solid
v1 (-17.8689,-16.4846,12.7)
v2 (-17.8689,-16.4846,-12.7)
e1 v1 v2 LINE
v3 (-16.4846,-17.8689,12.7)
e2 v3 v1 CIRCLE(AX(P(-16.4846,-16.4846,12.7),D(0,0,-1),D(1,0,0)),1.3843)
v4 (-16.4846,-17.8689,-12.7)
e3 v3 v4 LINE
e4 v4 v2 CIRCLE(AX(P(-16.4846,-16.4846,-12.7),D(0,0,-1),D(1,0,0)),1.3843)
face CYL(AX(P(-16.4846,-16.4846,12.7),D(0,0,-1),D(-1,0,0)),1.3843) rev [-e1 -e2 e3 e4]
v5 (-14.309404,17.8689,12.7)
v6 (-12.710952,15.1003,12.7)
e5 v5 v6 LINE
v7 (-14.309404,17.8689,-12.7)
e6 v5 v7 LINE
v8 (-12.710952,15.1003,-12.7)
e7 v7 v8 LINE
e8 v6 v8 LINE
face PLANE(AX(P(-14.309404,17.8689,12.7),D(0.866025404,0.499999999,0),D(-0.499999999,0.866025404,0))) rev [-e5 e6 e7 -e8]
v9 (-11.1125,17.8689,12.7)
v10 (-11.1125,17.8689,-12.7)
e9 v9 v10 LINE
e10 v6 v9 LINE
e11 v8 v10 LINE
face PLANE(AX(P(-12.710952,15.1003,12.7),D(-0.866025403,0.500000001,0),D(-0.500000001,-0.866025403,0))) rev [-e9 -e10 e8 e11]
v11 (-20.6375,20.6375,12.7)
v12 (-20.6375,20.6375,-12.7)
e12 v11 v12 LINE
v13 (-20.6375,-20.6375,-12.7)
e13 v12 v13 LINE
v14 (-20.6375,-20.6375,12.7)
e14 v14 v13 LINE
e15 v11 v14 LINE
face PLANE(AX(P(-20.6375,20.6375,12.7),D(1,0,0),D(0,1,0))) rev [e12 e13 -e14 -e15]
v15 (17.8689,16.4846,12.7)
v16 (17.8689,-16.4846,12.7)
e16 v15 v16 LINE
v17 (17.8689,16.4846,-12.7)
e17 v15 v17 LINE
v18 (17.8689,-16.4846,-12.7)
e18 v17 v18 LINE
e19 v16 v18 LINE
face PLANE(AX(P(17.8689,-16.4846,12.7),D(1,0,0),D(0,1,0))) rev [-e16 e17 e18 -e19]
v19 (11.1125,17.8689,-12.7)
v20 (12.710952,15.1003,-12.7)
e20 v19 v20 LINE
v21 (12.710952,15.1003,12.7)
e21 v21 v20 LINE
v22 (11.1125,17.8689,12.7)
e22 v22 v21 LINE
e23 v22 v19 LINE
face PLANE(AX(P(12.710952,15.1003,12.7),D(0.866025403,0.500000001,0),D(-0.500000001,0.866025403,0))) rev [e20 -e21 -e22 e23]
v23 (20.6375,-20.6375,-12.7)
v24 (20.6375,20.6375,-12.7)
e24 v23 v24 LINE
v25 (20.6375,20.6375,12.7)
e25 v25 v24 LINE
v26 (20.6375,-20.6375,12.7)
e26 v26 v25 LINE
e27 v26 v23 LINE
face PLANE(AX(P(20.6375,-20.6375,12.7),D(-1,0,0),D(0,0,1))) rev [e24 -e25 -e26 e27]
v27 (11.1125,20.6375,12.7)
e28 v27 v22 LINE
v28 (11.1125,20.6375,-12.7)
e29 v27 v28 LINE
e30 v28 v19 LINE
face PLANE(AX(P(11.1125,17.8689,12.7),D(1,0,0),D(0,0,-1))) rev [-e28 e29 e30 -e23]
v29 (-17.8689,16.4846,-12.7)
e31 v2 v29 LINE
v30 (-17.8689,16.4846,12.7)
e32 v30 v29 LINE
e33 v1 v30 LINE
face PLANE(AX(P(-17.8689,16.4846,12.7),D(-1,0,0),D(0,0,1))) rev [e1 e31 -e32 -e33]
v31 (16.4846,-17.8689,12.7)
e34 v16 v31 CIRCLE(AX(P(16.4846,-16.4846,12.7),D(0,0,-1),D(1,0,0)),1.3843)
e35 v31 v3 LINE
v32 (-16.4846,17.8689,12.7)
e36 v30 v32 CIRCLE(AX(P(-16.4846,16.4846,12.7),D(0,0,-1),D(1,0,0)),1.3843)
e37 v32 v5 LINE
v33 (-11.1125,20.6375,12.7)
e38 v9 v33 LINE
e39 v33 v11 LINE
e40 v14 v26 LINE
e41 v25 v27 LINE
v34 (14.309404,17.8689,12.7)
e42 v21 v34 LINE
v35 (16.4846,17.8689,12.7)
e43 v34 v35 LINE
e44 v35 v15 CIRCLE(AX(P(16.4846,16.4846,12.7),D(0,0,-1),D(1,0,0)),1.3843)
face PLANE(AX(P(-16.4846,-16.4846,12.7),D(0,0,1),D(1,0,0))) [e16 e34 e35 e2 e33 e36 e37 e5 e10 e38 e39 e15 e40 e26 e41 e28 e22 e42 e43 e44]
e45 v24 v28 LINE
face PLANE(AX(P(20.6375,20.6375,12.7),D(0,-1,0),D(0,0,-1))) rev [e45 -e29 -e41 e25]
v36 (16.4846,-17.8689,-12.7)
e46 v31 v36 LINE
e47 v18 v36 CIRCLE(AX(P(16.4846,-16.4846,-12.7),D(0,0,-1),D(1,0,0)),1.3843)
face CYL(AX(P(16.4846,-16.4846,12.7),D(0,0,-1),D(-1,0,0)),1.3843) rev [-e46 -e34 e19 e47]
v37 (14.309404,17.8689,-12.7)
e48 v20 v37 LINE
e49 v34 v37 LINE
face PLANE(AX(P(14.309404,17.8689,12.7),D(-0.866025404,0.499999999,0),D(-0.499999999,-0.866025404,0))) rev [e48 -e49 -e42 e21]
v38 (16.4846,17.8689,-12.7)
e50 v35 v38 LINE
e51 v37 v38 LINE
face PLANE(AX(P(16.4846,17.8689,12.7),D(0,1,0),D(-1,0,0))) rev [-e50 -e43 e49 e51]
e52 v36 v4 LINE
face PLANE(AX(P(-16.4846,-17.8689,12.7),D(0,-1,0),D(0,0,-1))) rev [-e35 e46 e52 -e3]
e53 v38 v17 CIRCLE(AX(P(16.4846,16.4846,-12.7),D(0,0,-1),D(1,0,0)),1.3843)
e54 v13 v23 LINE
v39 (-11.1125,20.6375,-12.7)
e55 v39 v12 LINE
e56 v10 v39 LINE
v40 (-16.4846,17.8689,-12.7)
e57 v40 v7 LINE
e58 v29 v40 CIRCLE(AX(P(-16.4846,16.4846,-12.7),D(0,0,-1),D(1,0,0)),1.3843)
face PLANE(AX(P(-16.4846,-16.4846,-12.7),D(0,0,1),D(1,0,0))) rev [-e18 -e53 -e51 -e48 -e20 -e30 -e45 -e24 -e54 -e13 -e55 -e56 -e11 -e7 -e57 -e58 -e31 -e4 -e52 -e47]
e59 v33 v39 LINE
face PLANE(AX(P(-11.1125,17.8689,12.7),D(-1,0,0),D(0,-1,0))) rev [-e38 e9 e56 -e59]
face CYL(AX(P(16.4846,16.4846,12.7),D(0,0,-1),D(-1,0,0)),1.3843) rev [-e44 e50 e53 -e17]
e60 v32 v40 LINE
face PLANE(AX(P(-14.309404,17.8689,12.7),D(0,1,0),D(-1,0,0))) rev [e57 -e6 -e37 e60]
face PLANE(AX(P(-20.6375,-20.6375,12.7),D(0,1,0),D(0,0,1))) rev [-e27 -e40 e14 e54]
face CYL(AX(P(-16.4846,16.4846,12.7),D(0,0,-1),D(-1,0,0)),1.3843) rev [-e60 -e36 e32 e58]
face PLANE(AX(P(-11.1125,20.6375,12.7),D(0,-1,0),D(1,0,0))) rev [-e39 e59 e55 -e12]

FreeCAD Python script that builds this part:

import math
import FreeCAD as App
import Part
import Sketcher

V = App.Vector
Q = App.Units.Quantity

doc = App.newDocument("Part")
body = doc.addObject("PartDesign::Body", "Body")

# Sketch on XY plane
sketch1 = doc.addObject("Sketcher::SketchObject", "Sketch")
body.addObject(sketch1)
sketch1.AttachmentSupport = (doc.XY_Plane, [""])
sketch1.MapMode = "FlatFace"
sketch1.addGeometry([
    Part.LineSegment(V(-11.1125, 20.6375, 0), V(-20.6375, 20.6375, 0)),  # 0
    Part.LineSegment(V(-20.6375, 20.6375, 0), V(-20.6375, -20.6375, 0)),  # 1
    Part.LineSegment(V(-20.6375, -20.6375, 0), V(20.6375, -20.6375, 0)),  # 2
    Part.LineSegment(V(20.6375, -20.6375, 0), V(20.6375, 20.6375, 0)),  # 3
    Part.LineSegment(V(20.6375, 20.6375, 0), V(11.1125, 20.6375, 0)),  # 4
    Part.LineSegment(V(11.1125, 20.6375, 0), V(11.1125, 17.8689, 0)),  # 5
    Part.LineSegment(V(11.1125, 17.8689, 0), V(12.710952, 15.1003, 0)),  # 6
    Part.LineSegment(V(12.710952, 15.1003, 0), V(14.309404, 17.8689, 0)),  # 7
    Part.LineSegment(V(14.309404, 17.8689, 0), V(16.4846, 17.8689, 0)),  # 8
    Part.ArcOfCircle(Part.Circle(V(16.4846, 16.4846, 0), V(0, 0, 1), 1.3843), math.radians(0), math.radians(90)),  # 9
    Part.LineSegment(V(17.8689, 16.4846, 0), V(17.8689, -16.4846, 0)),  # 10
    Part.ArcOfCircle(Part.Circle(V(16.4846, -16.4846, 0), V(0, 0, 1), 1.3843), math.radians(-90), math.radians(0)),  # 11
    Part.LineSegment(V(16.4846, -17.8689, 0), V(-16.4846, -17.8689, 0)),  # 12
    Part.ArcOfCircle(Part.Circle(V(-16.4846, -16.4846, 0), V(0, 0, 1), 1.3843), math.radians(-180), math.radians(-90)),  # 13
    Part.LineSegment(V(-17.8689, -16.4846, 0), V(-17.8689, 16.4846, 0)),  # 14
    Part.ArcOfCircle(Part.Circle(V(-16.4846, 16.4846, 0), V(0, 0, 1), 1.3843), math.radians(90), math.radians(180)),  # 15
    Part.LineSegment(V(-16.4846, 17.8689, 0), V(-14.309404, 17.8689, 0)),  # 16
    Part.LineSegment(V(-14.309404, 17.8689, 0), V(-12.710952, 15.1003, 0)),  # 17
    Part.LineSegment(V(-12.710952, 15.1003, 0), V(-11.1125, 17.8689, 0)),  # 18
    Part.LineSegment(V(-11.1125, 17.8689, 0), V(-11.1125, 20.6375, 0)),  # 19
], False)
sketch1.addConstraint([
    Sketcher.Constraint("Coincident", 0, 2, 1, 1),
    Sketcher.Constraint("Coincident", 1, 2, 2, 1),
    Sketcher.Constraint("Coincident", 2, 2, 3, 1),
    Sketcher.Constraint("Coincident", 3, 2, 4, 1),
    Sketcher.Constraint("Coincident", 4, 2, 5, 1),
    Sketcher.Constraint("Coincident", 5, 2, 6, 1),
    Sketcher.Constraint("Coincident", 6, 2, 7, 1),
    Sketcher.Constraint("Coincident", 7, 2, 8, 1),
    Sketcher.Constraint("Tangent", 8, 2, 9, 2),
    Sketcher.Constraint("Tangent", 9, 1, 10, 1),
    Sketcher.Constraint("Tangent", 10, 2, 11, 2),
    Sketcher.Constraint("Tangent", 11, 1, 12, 1),
    Sketcher.Constraint("Tangent", 12, 2, 13, 2),
    Sketcher.Constraint("Tangent", 13, 1, 14, 1),
    Sketcher.Constraint("Tangent", 14, 2, 15, 2),
    Sketcher.Constraint("Tangent", 15, 1, 16, 1),
    Sketcher.Constraint("Coincident", 16, 2, 17, 1),
    Sketcher.Constraint("Coincident", 17, 2, 18, 1),
    Sketcher.Constraint("Coincident", 18, 2, 19, 1),
    Sketcher.Constraint("Coincident", 19, 2, 0, 1),
    Sketcher.Constraint("Horizontal", 0),
    Sketcher.Constraint("Vertical", 1),
    Sketcher.Constraint("Horizontal", 2),
    Sketcher.Constraint("Vertical", 3),
    Sketcher.Constraint("Horizontal", 4),
    Sketcher.Constraint("Vertical", 5),
    Sketcher.Constraint("Horizontal", 8),
    Sketcher.Constraint("Vertical", 10),
    Sketcher.Constraint("Horizontal", 12),
    Sketcher.Constraint("Vertical", 14),
    Sketcher.Constraint("Horizontal", 16),
    Sketcher.Constraint("Vertical", 19),
    Sketcher.Constraint("Equal", 9, 11),
    Sketcher.Constraint("Equal", 11, 13),
    Sketcher.Constraint("Equal", 13, 15),
    Sketcher.Constraint("Symmetric", 9, 3, 13, 3, -1, 1),
    Sketcher.Constraint("Symmetric", 0, 2, 2, 2, -1, 1),
    Sketcher.Constraint("Symmetric", 7, 2, 16, 2, -2),
    Sketcher.Constraint("Symmetric", 6, 2, 17, 2, -2),
    Sketcher.Constraint("Symmetric", 5, 2, 18, 2, -2),
    Sketcher.Constraint("Parallel", 6, 17),
    Sketcher.Constraint("Horizontal", 0, 2, 3, 2),
    Sketcher.Constraint("Horizontal", 5, 2, 7, 2),
    Sketcher.Constraint("Equal", 2, 1),
    Sketcher.Constraint("Equal", 12, 10),
    Sketcher.Constraint("Angle", 6, Q("-60 deg")),
    Sketcher.Constraint("Radius", 9, Q("0.0545 in")),
    Sketcher.Constraint("DistanceX", 0, 2, 0, 1, Q("0.375 in")),
    Sketcher.Constraint("DistanceX", 2, 1, 2, 2, Q("1.625 in")),
    Sketcher.Constraint("DistanceX", 12, 2, 12, 1, Q("1.298 in")),
    Sketcher.Constraint("DistanceY", 6, 2, 5, 2, Q("0.109 in")),
])
pad1 = doc.addObject("PartDesign::Pad", "Pad")
body.addObject(pad1)
pad1.Profile = sketch1
pad1.Length = Q("1 in")
pad1.Midplane = True

doc.recompute()
